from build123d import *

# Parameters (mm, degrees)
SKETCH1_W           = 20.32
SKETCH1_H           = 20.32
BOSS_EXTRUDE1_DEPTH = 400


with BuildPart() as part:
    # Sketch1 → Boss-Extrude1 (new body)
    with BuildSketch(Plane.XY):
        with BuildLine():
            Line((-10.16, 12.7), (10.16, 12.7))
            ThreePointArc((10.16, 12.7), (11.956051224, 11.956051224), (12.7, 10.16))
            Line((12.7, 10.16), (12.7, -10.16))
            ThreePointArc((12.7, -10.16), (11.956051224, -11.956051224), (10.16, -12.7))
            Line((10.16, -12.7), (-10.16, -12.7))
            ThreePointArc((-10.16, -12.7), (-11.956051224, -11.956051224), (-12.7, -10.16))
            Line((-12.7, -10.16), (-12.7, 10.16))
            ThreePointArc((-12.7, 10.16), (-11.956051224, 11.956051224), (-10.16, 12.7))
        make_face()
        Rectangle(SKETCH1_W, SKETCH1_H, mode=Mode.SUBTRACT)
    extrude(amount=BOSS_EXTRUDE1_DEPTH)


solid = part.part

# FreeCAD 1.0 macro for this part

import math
import FreeCAD as App
import Part
import Sketcher

V = App.Vector
Q = App.Units.Quantity

doc = App.newDocument("Part")
body = doc.addObject("PartDesign::Body", "Body")

# Sketch on XY plane
sketch1 = body.newObject("Sketcher::SketchObject", "Sketch")
sketch1.AttachmentSupport = (doc.getObject("XY_Plane"), [""])
sketch1.MapMode = "FlatFace"
sketch1.addGeometry(Part.LineSegment(V(10.16, 12.7, 0), V(-10.16, 12.7, 0)), False)
sketch1.addGeometry(Part.ArcOfCircle(Part.Circle(V(-10.16, 10.16, 0), V(0, 0, 1), 2.54), math.radians(90), math.radians(180)), False)
sketch1.addGeometry(Part.LineSegment(V(-12.7, 10.16, 0), V(-12.7, -10.16, 0)), False)
sketch1.addGeometry(Part.ArcOfCircle(Part.Circle(V(-10.16, -10.16, 0), V(0, 0, 1), 2.54), math.radians(-180), math.radians(-90)), False)
sketch1.addGeometry(Part.LineSegment(V(-10.16, -12.7, 0), V(10.16, -12.7, 0)), False)
sketch1.addGeometry(Part.ArcOfCircle(Part.Circle(V(10.16, -10.16, 0), V(0, 0, 1), 2.54), math.radians(-90), math.radians(0)), False)
sketch1.addGeometry(Part.LineSegment(V(12.7, -10.16, 0), V(12.7, 10.16, 0)), False)
sketch1.addGeometry(Part.ArcOfCircle(Part.Circle(V(10.16, 10.16, 0), V(0, 0, 1), 2.54), math.radians(0), math.radians(90)), False)
sketch1.addGeometry(Part.LineSegment(V(-10.16, -10.16, 0), V(-10.16, 10.16, 0)), False)
sketch1.addGeometry(Part.LineSegment(V(-10.16, 10.16, 0), V(10.16, 10.16, 0)), False)
sketch1.addGeometry(Part.LineSegment(V(10.16, 10.16, 0), V(10.16, -10.16, 0)), False)
sketch1.addGeometry(Part.LineSegment(V(10.16, -10.16, 0), V(-10.16, -10.16, 0)), False)
sketch1.addConstraint(Sketcher.Constraint("Tangent", 0, 2, 1, 1))
sketch1.addConstraint(Sketcher.Constraint("Tangent", 1, 2, 2, 1))
sketch1.addConstraint(Sketcher.Constraint("Tangent", 2, 2, 3, 1))
sketch1.addConstraint(Sketcher.Constraint("Tangent", 3, 2, 4, 1))
sketch1.addConstraint(Sketcher.Constraint("Tangent", 4, 2, 5, 1))
sketch1.addConstraint(Sketcher.Constraint("Tangent", 5, 2, 6, 1))
sketch1.addConstraint(Sketcher.Constraint("Tangent", 6, 2, 7, 1))
sketch1.addConstraint(Sketcher.Constraint("Tangent", 7, 2, 0, 1))
sketch1.addConstraint(Sketcher.Constraint("Coincident", 8, 2, 9, 1))
sketch1.addConstraint(Sketcher.Constraint("Coincident", 9, 2, 10, 1))
sketch1.addConstraint(Sketcher.Constraint("Coincident", 10, 2, 11, 1))
sketch1.addConstraint(Sketcher.Constraint("Coincident", 11, 2, 8, 1))
sketch1.addConstraint(Sketcher.Constraint("Horizontal", 0))
sketch1.addConstraint(Sketcher.Constraint("Vertical", 2))
sketch1.addConstraint(Sketcher.Constraint("Horizontal", 4))
sketch1.addConstraint(Sketcher.Constraint("Vertical", 6))
sketch1.addConstraint(Sketcher.Constraint("Vertical", 8))
sketch1.addConstraint(Sketcher.Constraint("Horizontal", 9))
sketch1.addConstraint(Sketcher.Constraint("Vertical", 10))
sketch1.addConstraint(Sketcher.Constraint("Horizontal", 11))
sketch1.addConstraint(Sketcher.Constraint("Coincident", 8, 2, 1, 3))
sketch1.addConstraint(Sketcher.Constraint("Coincident", 9, 2, 7, 3))
sketch1.addConstraint(Sketcher.Constraint("Coincident", 10, 2, 5, 3))
sketch1.addConstraint(Sketcher.Constraint("Equal", 1, 3))
sketch1.addConstraint(Sketcher.Constraint("Symmetric", 1, 3, 5, 3, -1, 1))
sketch1.addConstraint(Sketcher.Constraint("Equal", 11, 2))
sketch1.addConstraint(Sketcher.Constraint("Radius", 1, Q("0.1 in")))
sketch1.addConstraint(Sketcher.Constraint("DistanceX", 0, 2, 0, 1, Q("0.8 in")))
pad1 = body.newObject("PartDesign::Pad", "Pad")
pad1.Profile = sketch1
pad1.Length = 400

doc.recompute()
